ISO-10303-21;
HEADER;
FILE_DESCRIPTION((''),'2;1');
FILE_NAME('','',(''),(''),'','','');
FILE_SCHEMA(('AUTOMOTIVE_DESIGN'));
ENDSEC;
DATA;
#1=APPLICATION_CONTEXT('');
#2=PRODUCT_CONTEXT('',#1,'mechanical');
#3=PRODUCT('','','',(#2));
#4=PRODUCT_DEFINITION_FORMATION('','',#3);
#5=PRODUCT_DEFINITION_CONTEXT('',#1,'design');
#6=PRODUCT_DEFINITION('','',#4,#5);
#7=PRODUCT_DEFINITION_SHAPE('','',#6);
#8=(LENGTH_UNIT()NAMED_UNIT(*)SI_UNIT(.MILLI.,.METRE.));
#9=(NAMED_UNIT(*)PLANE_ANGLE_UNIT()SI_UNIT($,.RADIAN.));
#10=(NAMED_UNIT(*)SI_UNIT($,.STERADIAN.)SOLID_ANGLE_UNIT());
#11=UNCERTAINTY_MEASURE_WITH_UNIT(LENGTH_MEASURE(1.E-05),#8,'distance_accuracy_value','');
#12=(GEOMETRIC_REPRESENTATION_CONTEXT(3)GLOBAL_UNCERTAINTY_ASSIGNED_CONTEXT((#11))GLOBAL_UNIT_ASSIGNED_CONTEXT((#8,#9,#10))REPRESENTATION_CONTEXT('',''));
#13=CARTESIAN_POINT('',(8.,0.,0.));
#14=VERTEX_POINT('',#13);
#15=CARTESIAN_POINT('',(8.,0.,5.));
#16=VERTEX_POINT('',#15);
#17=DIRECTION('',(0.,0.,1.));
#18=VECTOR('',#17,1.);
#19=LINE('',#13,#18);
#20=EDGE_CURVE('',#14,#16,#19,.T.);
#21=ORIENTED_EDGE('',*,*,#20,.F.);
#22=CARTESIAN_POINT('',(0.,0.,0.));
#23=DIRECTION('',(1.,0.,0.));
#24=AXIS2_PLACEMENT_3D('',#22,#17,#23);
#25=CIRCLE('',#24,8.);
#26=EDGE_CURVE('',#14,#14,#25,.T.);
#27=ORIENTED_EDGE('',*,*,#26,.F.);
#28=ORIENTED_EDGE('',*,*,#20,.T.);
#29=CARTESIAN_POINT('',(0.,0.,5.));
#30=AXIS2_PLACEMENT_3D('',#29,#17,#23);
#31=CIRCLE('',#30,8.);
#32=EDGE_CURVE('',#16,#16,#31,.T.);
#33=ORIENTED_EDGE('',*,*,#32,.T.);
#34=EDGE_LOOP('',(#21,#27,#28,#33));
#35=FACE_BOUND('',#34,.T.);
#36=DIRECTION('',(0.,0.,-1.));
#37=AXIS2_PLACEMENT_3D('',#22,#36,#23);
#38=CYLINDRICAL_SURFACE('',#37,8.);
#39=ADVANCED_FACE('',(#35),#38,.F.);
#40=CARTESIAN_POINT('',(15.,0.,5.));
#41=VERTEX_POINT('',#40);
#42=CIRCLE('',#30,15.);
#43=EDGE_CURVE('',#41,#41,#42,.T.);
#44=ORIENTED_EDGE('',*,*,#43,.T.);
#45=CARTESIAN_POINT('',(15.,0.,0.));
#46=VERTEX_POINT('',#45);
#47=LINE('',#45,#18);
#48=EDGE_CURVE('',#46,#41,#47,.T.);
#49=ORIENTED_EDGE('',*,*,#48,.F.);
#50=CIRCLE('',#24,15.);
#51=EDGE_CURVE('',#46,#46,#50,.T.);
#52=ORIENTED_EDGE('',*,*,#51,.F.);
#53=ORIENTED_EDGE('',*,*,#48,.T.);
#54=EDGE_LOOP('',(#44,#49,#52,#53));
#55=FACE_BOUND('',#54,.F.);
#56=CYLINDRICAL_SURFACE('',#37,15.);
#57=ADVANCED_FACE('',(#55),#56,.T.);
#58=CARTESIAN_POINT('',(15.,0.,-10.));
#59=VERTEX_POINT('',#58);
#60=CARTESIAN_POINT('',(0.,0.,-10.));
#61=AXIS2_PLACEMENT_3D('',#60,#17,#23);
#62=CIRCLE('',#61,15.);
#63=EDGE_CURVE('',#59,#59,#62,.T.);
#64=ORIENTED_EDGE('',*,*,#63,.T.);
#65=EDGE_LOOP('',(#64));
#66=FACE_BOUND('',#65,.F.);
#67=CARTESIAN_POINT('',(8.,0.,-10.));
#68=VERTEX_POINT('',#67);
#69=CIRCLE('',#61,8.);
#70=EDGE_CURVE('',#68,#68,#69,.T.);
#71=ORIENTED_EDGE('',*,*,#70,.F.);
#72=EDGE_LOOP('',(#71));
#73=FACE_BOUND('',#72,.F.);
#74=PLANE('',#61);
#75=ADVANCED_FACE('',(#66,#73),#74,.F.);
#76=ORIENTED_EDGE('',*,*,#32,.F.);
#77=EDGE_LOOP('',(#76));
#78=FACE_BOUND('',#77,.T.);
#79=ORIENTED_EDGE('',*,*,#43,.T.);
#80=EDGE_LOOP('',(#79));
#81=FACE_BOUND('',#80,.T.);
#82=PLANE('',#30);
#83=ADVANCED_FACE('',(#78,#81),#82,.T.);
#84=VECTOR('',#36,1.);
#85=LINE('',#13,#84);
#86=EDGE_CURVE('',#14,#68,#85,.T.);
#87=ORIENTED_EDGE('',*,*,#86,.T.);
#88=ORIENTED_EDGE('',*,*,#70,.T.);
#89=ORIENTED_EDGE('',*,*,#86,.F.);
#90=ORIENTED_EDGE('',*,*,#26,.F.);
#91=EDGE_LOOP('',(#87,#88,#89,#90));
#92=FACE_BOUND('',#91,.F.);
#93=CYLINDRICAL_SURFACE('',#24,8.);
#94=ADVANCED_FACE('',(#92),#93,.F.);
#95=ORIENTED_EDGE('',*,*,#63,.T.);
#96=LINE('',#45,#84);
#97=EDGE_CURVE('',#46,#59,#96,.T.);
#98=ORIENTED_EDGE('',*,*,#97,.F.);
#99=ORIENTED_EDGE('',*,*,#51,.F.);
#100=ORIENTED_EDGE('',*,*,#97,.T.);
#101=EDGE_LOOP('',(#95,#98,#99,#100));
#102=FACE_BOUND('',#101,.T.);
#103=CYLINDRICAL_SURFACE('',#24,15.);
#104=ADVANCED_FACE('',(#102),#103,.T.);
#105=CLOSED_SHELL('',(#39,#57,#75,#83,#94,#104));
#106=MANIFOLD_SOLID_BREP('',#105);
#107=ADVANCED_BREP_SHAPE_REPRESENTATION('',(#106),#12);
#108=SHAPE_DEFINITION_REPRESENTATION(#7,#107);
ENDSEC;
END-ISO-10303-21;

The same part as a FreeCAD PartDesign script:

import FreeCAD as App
import Part
import Sketcher

V = App.Vector

doc = App.newDocument("Part")
body = doc.addObject("PartDesign::Body", "Body")

# Sketch on XY plane
sketch1 = body.newObject("Sketcher::SketchObject", "Sketch")
sketch1.AttachmentSupport = (doc.getObject("XY_Plane"), [""])
sketch1.MapMode = "FlatFace"
sketch1.addGeometry(Part.Circle(V(0, 0, 0), V(0, 0, 1), 15), False)
sketch1.addGeometry(Part.Circle(V(0, 0, 0), V(0, 0, 1), 8), False)
sketch1.addConstraint(Sketcher.Constraint("Coincident", 0, 3, -1, 1))
sketch1.addConstraint(Sketcher.Constraint("Coincident", 1, 3, -1, 1))
sketch1.addConstraint(Sketcher.Constraint("Diameter", 1, 16.0))
sketch1.addConstraint(Sketcher.Constraint("Diameter", 0, 30.0))
pad1 = body.newObject("PartDesign::Pad", "Pad")
pad1.Profile = sketch1
pad1.Type = "TwoLengths"
pad1.Length = 5
pad1.Length2 = 10

doc.recompute()
